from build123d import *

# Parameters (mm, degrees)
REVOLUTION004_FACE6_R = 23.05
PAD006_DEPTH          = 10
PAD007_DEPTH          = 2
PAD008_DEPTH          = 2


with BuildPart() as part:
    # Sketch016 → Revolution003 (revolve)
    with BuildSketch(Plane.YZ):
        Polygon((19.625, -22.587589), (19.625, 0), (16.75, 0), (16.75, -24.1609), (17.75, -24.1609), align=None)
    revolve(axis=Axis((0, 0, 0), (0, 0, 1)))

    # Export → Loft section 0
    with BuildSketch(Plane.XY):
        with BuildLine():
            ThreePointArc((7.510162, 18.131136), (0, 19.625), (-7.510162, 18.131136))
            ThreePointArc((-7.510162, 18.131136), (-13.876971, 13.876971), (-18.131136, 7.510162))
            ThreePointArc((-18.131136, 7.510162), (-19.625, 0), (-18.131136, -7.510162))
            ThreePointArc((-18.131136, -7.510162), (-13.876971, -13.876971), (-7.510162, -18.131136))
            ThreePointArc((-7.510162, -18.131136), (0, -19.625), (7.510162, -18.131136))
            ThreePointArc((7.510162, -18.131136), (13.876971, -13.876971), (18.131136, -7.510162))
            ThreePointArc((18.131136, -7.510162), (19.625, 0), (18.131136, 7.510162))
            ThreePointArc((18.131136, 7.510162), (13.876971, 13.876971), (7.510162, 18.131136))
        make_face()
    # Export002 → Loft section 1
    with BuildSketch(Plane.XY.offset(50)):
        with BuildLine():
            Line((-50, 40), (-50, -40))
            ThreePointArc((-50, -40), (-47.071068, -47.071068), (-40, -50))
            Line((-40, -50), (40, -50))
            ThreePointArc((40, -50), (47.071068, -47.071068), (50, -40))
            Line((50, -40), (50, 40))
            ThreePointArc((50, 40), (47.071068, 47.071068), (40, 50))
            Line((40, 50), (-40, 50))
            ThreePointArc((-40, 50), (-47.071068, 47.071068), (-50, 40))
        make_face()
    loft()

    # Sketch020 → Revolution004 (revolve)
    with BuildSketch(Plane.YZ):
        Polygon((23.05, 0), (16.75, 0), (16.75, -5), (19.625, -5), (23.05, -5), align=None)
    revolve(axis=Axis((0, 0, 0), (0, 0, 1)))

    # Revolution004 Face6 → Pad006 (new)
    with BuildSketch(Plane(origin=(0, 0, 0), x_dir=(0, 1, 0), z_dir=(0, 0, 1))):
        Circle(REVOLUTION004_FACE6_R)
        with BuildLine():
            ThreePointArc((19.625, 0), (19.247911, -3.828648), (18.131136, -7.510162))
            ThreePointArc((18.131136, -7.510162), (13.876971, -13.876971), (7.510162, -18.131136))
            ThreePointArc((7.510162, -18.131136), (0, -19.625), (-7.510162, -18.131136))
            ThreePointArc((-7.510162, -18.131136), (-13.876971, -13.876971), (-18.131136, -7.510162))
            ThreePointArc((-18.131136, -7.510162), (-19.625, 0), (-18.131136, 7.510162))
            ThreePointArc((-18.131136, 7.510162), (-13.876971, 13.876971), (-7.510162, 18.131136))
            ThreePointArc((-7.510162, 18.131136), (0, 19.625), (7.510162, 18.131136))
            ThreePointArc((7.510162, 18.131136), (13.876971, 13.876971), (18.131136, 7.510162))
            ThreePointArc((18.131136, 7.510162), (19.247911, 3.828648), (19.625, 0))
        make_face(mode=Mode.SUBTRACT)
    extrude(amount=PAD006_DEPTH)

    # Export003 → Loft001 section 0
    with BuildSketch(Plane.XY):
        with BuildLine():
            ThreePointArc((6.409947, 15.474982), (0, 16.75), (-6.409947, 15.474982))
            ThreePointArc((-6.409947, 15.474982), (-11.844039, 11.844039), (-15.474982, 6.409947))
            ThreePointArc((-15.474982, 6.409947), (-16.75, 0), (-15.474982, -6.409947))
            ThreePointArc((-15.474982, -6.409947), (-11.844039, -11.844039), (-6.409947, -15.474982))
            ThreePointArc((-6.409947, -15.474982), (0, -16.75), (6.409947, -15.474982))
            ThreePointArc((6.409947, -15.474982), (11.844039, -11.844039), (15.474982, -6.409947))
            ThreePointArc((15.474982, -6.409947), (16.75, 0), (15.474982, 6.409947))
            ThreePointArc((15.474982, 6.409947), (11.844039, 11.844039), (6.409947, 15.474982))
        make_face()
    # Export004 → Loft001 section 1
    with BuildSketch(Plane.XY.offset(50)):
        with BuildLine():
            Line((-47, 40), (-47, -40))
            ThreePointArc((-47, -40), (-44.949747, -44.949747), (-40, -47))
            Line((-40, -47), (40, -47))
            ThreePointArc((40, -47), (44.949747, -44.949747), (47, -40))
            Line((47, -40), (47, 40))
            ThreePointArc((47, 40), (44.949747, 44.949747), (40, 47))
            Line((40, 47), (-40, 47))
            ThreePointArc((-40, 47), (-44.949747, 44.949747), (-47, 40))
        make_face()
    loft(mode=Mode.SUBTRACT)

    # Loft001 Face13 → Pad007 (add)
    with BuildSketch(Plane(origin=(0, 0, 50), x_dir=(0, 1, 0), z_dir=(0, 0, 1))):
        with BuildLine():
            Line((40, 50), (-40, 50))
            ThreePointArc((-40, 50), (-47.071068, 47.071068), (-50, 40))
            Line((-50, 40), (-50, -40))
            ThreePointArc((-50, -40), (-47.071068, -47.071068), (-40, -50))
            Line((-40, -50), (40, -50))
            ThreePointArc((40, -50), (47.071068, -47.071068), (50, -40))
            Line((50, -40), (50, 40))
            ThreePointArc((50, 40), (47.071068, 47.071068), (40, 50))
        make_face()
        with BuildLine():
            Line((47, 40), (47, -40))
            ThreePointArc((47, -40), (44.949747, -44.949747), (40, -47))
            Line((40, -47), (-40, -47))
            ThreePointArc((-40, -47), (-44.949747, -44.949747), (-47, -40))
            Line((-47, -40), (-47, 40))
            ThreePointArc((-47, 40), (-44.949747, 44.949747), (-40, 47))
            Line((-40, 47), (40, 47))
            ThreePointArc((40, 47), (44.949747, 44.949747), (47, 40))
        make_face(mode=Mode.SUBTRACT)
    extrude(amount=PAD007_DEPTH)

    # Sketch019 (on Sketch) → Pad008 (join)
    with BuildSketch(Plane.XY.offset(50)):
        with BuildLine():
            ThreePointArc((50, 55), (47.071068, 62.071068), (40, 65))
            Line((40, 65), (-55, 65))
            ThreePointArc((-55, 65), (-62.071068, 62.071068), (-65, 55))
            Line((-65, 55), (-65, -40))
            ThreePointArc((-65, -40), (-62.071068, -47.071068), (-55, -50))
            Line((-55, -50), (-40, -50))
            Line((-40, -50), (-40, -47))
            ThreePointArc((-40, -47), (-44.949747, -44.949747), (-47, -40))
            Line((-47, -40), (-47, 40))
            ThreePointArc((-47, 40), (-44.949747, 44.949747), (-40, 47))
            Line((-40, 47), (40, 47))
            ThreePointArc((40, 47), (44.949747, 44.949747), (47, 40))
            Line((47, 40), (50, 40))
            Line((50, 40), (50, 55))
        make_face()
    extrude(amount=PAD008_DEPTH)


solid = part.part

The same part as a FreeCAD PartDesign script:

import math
import FreeCAD as App
import Part
import Sketcher
from FreeCAD import Vector
Q = App.Units.Quantity

doc = App.newDocument("Part")
body = doc.addObject("PartDesign::Body", "Body")

sketch1 = body.newObject("Sketcher::SketchObject", "Sketch")
sketch1.AttachmentSupport = (doc.getObject("YZ_Plane"), [""])
sketch1.MapMode = "FlatFace"
sketch1.addGeometry([
    Part.LineSegment(Vector(19.6, -22.6, 0), Vector(19.6, 0, 0)),
    Part.LineSegment(Vector(19.6, 0, 0), Vector(16.8, 0, 0)),
    Part.LineSegment(Vector(16.8, 0, 0), Vector(16.8, -24.2, 0)),
    Part.LineSegment(Vector(16.8, -24.2, 0), Vector(17.8, -24.2, 0)),
    Part.LineSegment(Vector(17.8, -24.2, 0), Vector(19.6, -22.6, 0)),
], False)
sketch1.addConstraint([
    Sketcher.Constraint("Coincident", 0, 2, 1, 1),
    Sketcher.Constraint("Coincident", 1, 2, 2, 1),
    Sketcher.Constraint("Coincident", 2, 2, 3, 1),
    Sketcher.Constraint("Coincident", 3, 2, 4, 1),
    Sketcher.Constraint("Coincident", 4, 2, 0, 1),
    Sketcher.Constraint("Vertical", 0),
    Sketcher.Constraint("Horizontal", 1),
    Sketcher.Constraint("Vertical", 2),
    Sketcher.Constraint("Horizontal", 3),
    Sketcher.Constraint("PointOnObject", 0, 2, -1),
    Sketcher.Constraint("DistanceX", 3, 1, 3, 2, 1.0),
    Sketcher.Constraint("Angle", 4, Q("39.999986 deg")),
    Sketcher.Constraint("DistanceX", 1, 2, 1, 1, 2.875),
    Sketcher.Constraint("DistanceX", -1, 1, 1, 2, 16.75),
    Sketcher.Constraint("DistanceY", 2, 2, 2, 1, 24.1609),
])
revolution = body.newObject("PartDesign::Revolution", "Revolution")
revolution.Profile = sketch1
revolution.ReferenceAxis = (sketch1, ["V_Axis"])
revolution.Angle = 360

sketch2 = body.newObject("Sketcher::SketchObject", "Sketch001")
sketch2.AttachmentSupport = (doc.getObject("XY_Plane"), [""])
sketch2.MapMode = "FlatFace"
sketch2.addGeometry([
    Part.ArcOfCircle(Part.Circle(Vector(0, 0, 0), Vector(0, 0, 1), 20), math.radians(68), math.radians(112)),
    Part.ArcOfCircle(Part.Circle(Vector(0, 0, 0), Vector(0, 0, 1), 20), math.radians(112), math.radians(158)),
    Part.ArcOfCircle(Part.Circle(Vector(0, 0, 0), Vector(0, 0, 1), 20), math.radians(158), math.radians(202)),
    Part.ArcOfCircle(Part.Circle(Vector(0, 0, 0), Vector(0, 0, 1), 20), math.radians(-158), math.radians(-112)),
    Part.ArcOfCircle(Part.Circle(Vector(0, 0, 0), Vector(0, 0, 1), 20), math.radians(-112), math.radians(-68)),
    Part.ArcOfCircle(Part.Circle(Vector(0, 0, 0), Vector(0, 0, 1), 20), math.radians(-68), math.radians(-22)),
    Part.ArcOfCircle(Part.Circle(Vector(0, 0, 0), Vector(0, 0, 1), 20), math.radians(-22), math.radians(22)),
    Part.ArcOfCircle(Part.Circle(Vector(0, 0, 0), Vector(0, 0, 1), 20), math.radians(22), math.radians(68)),
], False)
sketch2.addConstraint([
    Sketcher.Constraint("Tangent", 0, 2, 1, 1),
    Sketcher.Constraint("Tangent", 1, 2, 2, 1),
    Sketcher.Constraint("Tangent", 2, 2, 3, 1),
    Sketcher.Constraint("Tangent", 3, 2, 4, 1),
    Sketcher.Constraint("Tangent", 4, 2, 5, 1),
    Sketcher.Constraint("Tangent", 5, 2, 6, 1),
    Sketcher.Constraint("Tangent", 6, 2, 7, 1),
    Sketcher.Constraint("Tangent", 7, 2, 0, 1),
    Sketcher.Constraint("Coincident", 0, 3, -1, 1),
    Sketcher.Constraint("Coincident", 2, 3, -1, 1),
    Sketcher.Constraint("Coincident", 4, 3, -1, 1),
    Sketcher.Constraint("Equal", 3, 5),
    Sketcher.Constraint("Horizontal", 3, 2, 4, 2),
    Sketcher.Constraint("Horizontal", 2, 2, 5, 2),
    Sketcher.Constraint("Horizontal", 1, 2, 6, 2),
    Sketcher.Constraint("Horizontal", 0, 2, 7, 2),
    Sketcher.Constraint("Vertical", 1, 2, 2, 2),
    Sketcher.Constraint("Vertical", 0, 2, 3, 2),
    Sketcher.Constraint("Radius", 0, 19.625),
    Sketcher.Constraint("DistanceY", -1, 1, 1, 2, 7.510162),
    Sketcher.Constraint("DistanceX", 3, 2, -1, 1, 7.510162),
])

sketch3 = body.newObject("Sketcher::SketchObject", "Sketch002")
sketch3.AttachmentSupport = (doc.getObject("XY_Plane"), [""])
sketch3.MapMode = "FlatFace"
sketch3.AttachmentOffset = App.Placement(Vector(0, 0, 50), App.Rotation())
sketch3.addGeometry([
    Part.LineSegment(Vector(-50, 40, 0), Vector(-50, -40, 0)),
    Part.ArcOfCircle(Part.Circle(Vector(-40, -40, 0), Vector(0, 0, 1), 10), math.radians(180), math.radians(270)),
    Part.LineSegment(Vector(-40, -50, 0), Vector(40, -50, 0)),
    Part.ArcOfCircle(Part.Circle(Vector(40, -40, 0), Vector(0, 0, 1), 10), math.radians(-90), math.radians(0)),
    Part.LineSegment(Vector(50, -40, 0), Vector(50, 40, 0)),
    Part.ArcOfCircle(Part.Circle(Vector(40, 40, 0), Vector(0, 0, 1), 10), math.radians(0), math.radians(90)),
    Part.LineSegment(Vector(40, 50, 0), Vector(-40, 50, 0)),
    Part.ArcOfCircle(Part.Circle(Vector(-40, 40, 0), Vector(0, 0, 1), 10), math.radians(90), math.radians(180)),
], False)
sketch3.addConstraint([
    Sketcher.Constraint("Tangent", 0, 2, 1, 1),
    Sketcher.Constraint("Tangent", 1, 2, 2, 1),
    Sketcher.Constraint("Tangent", 2, 2, 3, 1),
    Sketcher.Constraint("Tangent", 3, 2, 4, 1),
    Sketcher.Constraint("Tangent", 4, 2, 5, 1),
    Sketcher.Constraint("Tangent", 5, 2, 6, 1),
    Sketcher.Constraint("Tangent", 6, 2, 7, 1),
    Sketcher.Constraint("Tangent", 7, 2, 0, 1),
    Sketcher.Constraint("Vertical", 0),
    Sketcher.Constraint("Horizontal", 2),
    Sketcher.Constraint("Vertical", 4),
    Sketcher.Constraint("Horizontal", 6),
    Sketcher.Constraint("Equal", 1, 3),
    Sketcher.Constraint("Equal", 3, 5),
    Sketcher.Constraint("Equal", 5, 7),
    Sketcher.Constraint("Symmetric", 1, 3, 5, 3, -1, 1),
    Sketcher.Constraint("Equal", 6, 0),
    Sketcher.Constraint("Radius", 1, 9.999999),
    Sketcher.Constraint("DistanceX", 2, 1, 2, 2, 80.0),
])

additiveloft = body.newObject("PartDesign::AdditiveLoft", "AdditiveLoft")
additiveloft.Profile = sketch2
additiveloft.Sections = [sketch3]

sketch4 = body.newObject("Sketcher::SketchObject", "Sketch003")
sketch4.AttachmentSupport = (doc.getObject("YZ_Plane"), [""])
sketch4.MapMode = "FlatFace"
sketch4.addGeometry([
    Part.LineSegment(Vector(23, 0, 0), Vector(17, 0, 0)),
    Part.LineSegment(Vector(17, 0, 0), Vector(17, -5, 0)),
    Part.LineSegment(Vector(17, -5, 0), Vector(23, -5, 0)),
    Part.LineSegment(Vector(23, -5, 0), Vector(23, 0, 0)),
], False)
sketch4.addConstraint([
    Sketcher.Constraint("Coincident", 0, 2, 1, 1),
    Sketcher.Constraint("Coincident", 1, 2, 2, 1),
    Sketcher.Constraint("Coincident", 2, 2, 3, 1),
    Sketcher.Constraint("Coincident", 3, 2, 0, 1),
    Sketcher.Constraint("Horizontal", 0),
    Sketcher.Constraint("Vertical", 1),
    Sketcher.Constraint("Horizontal", 2),
    Sketcher.Constraint("Vertical", 3),
    Sketcher.Constraint("PointOnObject", 0, 2, -1),
    Sketcher.Constraint("DistanceY", 1, 2, 1, 1, 5.0),
    Sketcher.Constraint("DistanceX", 0, 2, 0, 1, 6.3),
    Sketcher.Constraint("DistanceX", -1, 1, 0, 2, 16.75),
])
revolution2 = body.newObject("PartDesign::Revolution", "Revolution001")
revolution2.Profile = sketch4
revolution2.ReferenceAxis = (sketch4, ["V_Axis"])
revolution2.Angle = 360

sketch5 = body.newObject("Sketcher::SketchObject", "Sketch004")
sketch5.AttachmentSupport = (doc.getObject("XY_Plane"), [""])
sketch5.MapMode = "FlatFace"
sketch5.addGeometry([
    Part.Circle(Vector(0, 0, 0), Vector(0, 0, 1), 23),
    Part.ArcOfCircle(Part.Circle(Vector(0, 0, 0), Vector(0, 0, 1), 20), math.radians(90), math.radians(112)),
    Part.ArcOfCircle(Part.Circle(Vector(0, 0, 0), Vector(0, 0, 1), 20), math.radians(68), math.radians(90)),
    Part.ArcOfCircle(Part.Circle(Vector(0, 0, 0), Vector(0, 0, 1), 20), math.radians(22), math.radians(68)),
    Part.ArcOfCircle(Part.Circle(Vector(0, 0, 0), Vector(0, 0, 1), 20), math.radians(-22), math.radians(22)),
    Part.ArcOfCircle(Part.Circle(Vector(0, 0, 0), Vector(0, 0, 1), 20), math.radians(-68), math.radians(-22)),
    Part.ArcOfCircle(Part.Circle(Vector(0, 0, 0), Vector(0, 0, 1), 20), math.radians(-112), math.radians(-68)),
    Part.ArcOfCircle(Part.Circle(Vector(0, 0, 0), Vector(0, 0, 1), 20), math.radians(-158), math.radians(-112)),
    Part.ArcOfCircle(Part.Circle(Vector(0, 0, 0), Vector(0, 0, 1), 20), math.radians(158), math.radians(202)),
    Part.ArcOfCircle(Part.Circle(Vector(0, 0, 0), Vector(0, 0, 1), 20), math.radians(112), math.radians(158)),
], False)
sketch5.addConstraint([
    Sketcher.Constraint("Tangent", 1, 1, 2, 2),
    Sketcher.Constraint("Tangent", 2, 1, 3, 2),
    Sketcher.Constraint("Tangent", 3, 1, 4, 2),
    Sketcher.Constraint("Tangent", 4, 1, 5, 2),
    Sketcher.Constraint("Tangent", 5, 1, 6, 2),
    Sketcher.Constraint("Tangent", 6, 1, 7, 2),
    Sketcher.Constraint("Tangent", 7, 1, 8, 2),
    Sketcher.Constraint("Tangent", 8, 1, 9, 2),
    Sketcher.Constraint("Tangent", 9, 1, 1, 2),
    Sketcher.Constraint("Coincident", 0, 3, -1, 1),
    Sketcher.Constraint("Coincident", 1, 3, -1, 1),
    Sketcher.Constraint("Coincident", 3, 3, -1, 1),
    Sketcher.Constraint("Coincident", 5, 3, -1, 1),
    Sketcher.Constraint("Coincident", 7, 3, -1, 1),
    Sketcher.Constraint("PointOnObject", 1, 1, -2),
    Sketcher.Constraint("Horizontal", 5, 1, 6, 1),
    Sketcher.Constraint("Horizontal", 4, 1, 7, 1),
    Sketcher.Constraint("Horizontal", 3, 1, 8, 1),
    Sketcher.Constraint("Horizontal", 2, 1, 9, 1),
    Sketcher.Constraint("Vertical", 3, 1, 4, 1),
    Sketcher.Constraint("Vertical", 2, 1, 5, 1),
    Sketcher.Constraint("Diameter", 0, 46.1),
    Sketcher.Constraint("Radius", 4, 19.625),
    Sketcher.Constraint("DistanceY", -1, 1, 3, 1, 7.510162),
    Sketcher.Constraint("DistanceX", -1, 1, 5, 1, 7.510162),
])
pad1 = body.newObject("PartDesign::Pad", "Pad")
pad1.Profile = sketch5
pad1.Length = 10

sketch6 = body.newObject("Sketcher::SketchObject", "Sketch005")
sketch6.AttachmentSupport = (doc.getObject("XY_Plane"), [""])
sketch6.MapMode = "FlatFace"
sketch6.addGeometry([
    Part.ArcOfCircle(Part.Circle(Vector(0, 0, 0), Vector(0, 0, 1), 17), math.radians(67), math.radians(113)),
    Part.ArcOfCircle(Part.Circle(Vector(0, 0, 0), Vector(0, 0, 1), 17), math.radians(112), math.radians(158)),
    Part.ArcOfCircle(Part.Circle(Vector(0, 0, 0), Vector(0, 0, 1), 17), math.radians(157), math.radians(203)),
    Part.ArcOfCircle(Part.Circle(Vector(0, 0, 0), Vector(0, 0, 1), 17), math.radians(-158), math.radians(-112)),
    Part.ArcOfCircle(Part.Circle(Vector(0, 0, 0), Vector(0, 0, 1), 17), math.radians(-113), math.radians(-67)),
    Part.ArcOfCircle(Part.Circle(Vector(0, 0, 0), Vector(0, 0, 1), 17), math.radians(-68), math.radians(-22)),
    Part.ArcOfCircle(Part.Circle(Vector(0, 0, 0), Vector(0, 0, 1), 17), math.radians(-23), math.radians(23)),
    Part.ArcOfCircle(Part.Circle(Vector(0, 0, 0), Vector(0, 0, 1), 17), math.radians(22), math.radians(68)),
], False)
sketch6.addConstraint([
    Sketcher.Constraint("Tangent", 0, 2, 1, 1),
    Sketcher.Constraint("Tangent", 1, 2, 2, 1),
    Sketcher.Constraint("Tangent", 2, 2, 3, 1),
    Sketcher.Constraint("Tangent", 3, 2, 4, 1),
    Sketcher.Constraint("Tangent", 4, 2, 5, 1),
    Sketcher.Constraint("Tangent", 5, 2, 6, 1),
    Sketcher.Constraint("Tangent", 6, 2, 7, 1),
    Sketcher.Constraint("Tangent", 7, 2, 0, 1),
    Sketcher.Constraint("Coincident", 0, 3, -1, 1),
    Sketcher.Constraint("Coincident", 2, 3, -1, 1),
    Sketcher.Constraint("Coincident", 4, 3, -1, 1),
    Sketcher.Constraint("Equal", 3, 5),
    Sketcher.Constraint("Horizontal", 3, 2, 4, 2),
    Sketcher.Constraint("Horizontal", 2, 2, 5, 2),
    Sketcher.Constraint("Horizontal", 1, 2, 6, 2),
    Sketcher.Constraint("Horizontal", 0, 2, 7, 2),
    Sketcher.Constraint("Vertical", 1, 2, 2, 2),
    Sketcher.Constraint("Vertical", 0, 2, 3, 2),
    Sketcher.Constraint("Radius", 1, 16.749988),
    Sketcher.Constraint("DistanceX", 0, 2, 1, 3, 6.409938),
    Sketcher.Constraint("DistanceY", 1, 3, 1, 2, 6.409938),
])

sketch7 = body.newObject("Sketcher::SketchObject", "Sketch006")
sketch7.AttachmentSupport = (doc.getObject("XY_Plane"), [""])
sketch7.MapMode = "FlatFace"
sketch7.AttachmentOffset = App.Placement(Vector(0, 0, 50), App.Rotation())
sketch7.addGeometry([
    Part.LineSegment(Vector(-47, 40, 0), Vector(-47, -40, 0)),
    Part.ArcOfCircle(Part.Circle(Vector(-40, -40, 0), Vector(0, 0, 1), 7), math.radians(-180), math.radians(-90)),
    Part.LineSegment(Vector(-40, -47, 0), Vector(40, -47, 0)),
    Part.ArcOfCircle(Part.Circle(Vector(40, -40, 0), Vector(0, 0, 1), 7), math.radians(-90), math.radians(0)),
    Part.LineSegment(Vector(47, -40, 0), Vector(47, 40, 0)),
    Part.ArcOfCircle(Part.Circle(Vector(40, 40, 0), Vector(0, 0, 1), 7), math.radians(0), math.radians(90)),
    Part.LineSegment(Vector(40, 47, 0), Vector(-40, 47, 0)),
    Part.ArcOfCircle(Part.Circle(Vector(-40, 40, 0), Vector(0, 0, 1), 7), math.radians(90), math.radians(180)),
], False)
sketch7.addConstraint([
    Sketcher.Constraint("Tangent", 0, 2, 1, 1),
    Sketcher.Constraint("Tangent", 1, 2, 2, 1),
    Sketcher.Constraint("Tangent", 2, 2, 3, 1),
    Sketcher.Constraint("Tangent", 3, 2, 4, 1),
    Sketcher.Constraint("Tangent", 4, 2, 5, 1),
    Sketcher.Constraint("Tangent", 5, 2, 6, 1),
    Sketcher.Constraint("Tangent", 6, 2, 7, 1),
    Sketcher.Constraint("Tangent", 7, 2, 0, 1),
    Sketcher.Constraint("Vertical", 0),
    Sketcher.Constraint("Horizontal", 2),
    Sketcher.Constraint("Vertical", 4),
    Sketcher.Constraint("Horizontal", 6),
    Sketcher.Constraint("Equal", 1, 3),
    Sketcher.Constraint("Equal", 3, 5),
    Sketcher.Constraint("Equal", 5, 7),
    Sketcher.Constraint("Symmetric", 1, 3, 5, 3, -1, 1),
    Sketcher.Constraint("Equal", 6, 0),
    Sketcher.Constraint("Radius", 1, 7.000002),
    Sketcher.Constraint("DistanceX", 2, 1, 2, 2, 80.0),
])

subtractiveloft = body.newObject("PartDesign::SubtractiveLoft", "SubtractiveLoft")
subtractiveloft.Profile = sketch6
subtractiveloft.Sections = [sketch7]

sketch8 = body.newObject("Sketcher::SketchObject", "Sketch007")
sketch8.AttachmentSupport = (doc.getObject("XY_Plane"), [""])
sketch8.MapMode = "FlatFace"
sketch8.AttachmentOffset = App.Placement(Vector(0, 0, 50), App.Rotation())
sketch8.addGeometry([
    Part.LineSegment(Vector(-50, 40, 0), Vector(-50, -40, 0)),
    Part.ArcOfCircle(Part.Circle(Vector(-40, -40, 0), Vector(0, 0, 1), 10), math.radians(180), math.radians(270)),
    Part.LineSegment(Vector(-40, -50, 0), Vector(40, -50, 0)),
    Part.ArcOfCircle(Part.Circle(Vector(40, -40, 0), Vector(0, 0, 1), 10), math.radians(-90), math.radians(0)),
    Part.LineSegment(Vector(50, -40, 0), Vector(50, 40, 0)),
    Part.ArcOfCircle(Part.Circle(Vector(40, 40, 0), Vector(0, 0, 1), 10), math.radians(0), math.radians(90)),
    Part.LineSegment(Vector(40, 50, 0), Vector(-40, 50, 0)),
    Part.ArcOfCircle(Part.Circle(Vector(-40, 40, 0), Vector(0, 0, 1), 10), math.radians(90), math.radians(180)),
    Part.ArcOfCircle(Part.Circle(Vector(-40, 40, 0), Vector(0, 0, 1), 7), math.radians(90), math.radians(180)),
    Part.LineSegment(Vector(-40, 47, 0), Vector(40, 47, 0)),
    Part.ArcOfCircle(Part.Circle(Vector(40, 40, 0), Vector(0, 0, 1), 7), math.radians(0), math.radians(90)),
    Part.LineSegment(Vector(47, 40, 0), Vector(47, -40, 0)),
    Part.ArcOfCircle(Part.Circle(Vector(40, -40, 0), Vector(0, 0, 1), 7), math.radians(-90), math.radians(0)),
    Part.LineSegment(Vector(40, -47, 0), Vector(-40, -47, 0)),
    Part.ArcOfCircle(Part.Circle(Vector(-40, -40, 0), Vector(0, 0, 1), 7), math.radians(-180), math.radians(-90)),
    Part.LineSegment(Vector(-47, -40, 0), Vector(-47, 40, 0)),
], False)
sketch8.addConstraint([
    Sketcher.Constraint("Tangent", 0, 2, 1, 1),
    Sketcher.Constraint("Tangent", 1, 2, 2, 1),
    Sketcher.Constraint("Tangent", 2, 2, 3, 1),
    Sketcher.Constraint("Tangent", 3, 2, 4, 1),
    Sketcher.Constraint("Tangent", 4, 2, 5, 1),
    Sketcher.Constraint("Tangent", 5, 2, 6, 1),
    Sketcher.Constraint("Tangent", 6, 2, 7, 1),
    Sketcher.Constraint("Tangent", 7, 2, 0, 1),
    Sketcher.Constraint("Tangent", 8, 1, 9, 1),
    Sketcher.Constraint("Tangent", 9, 2, 10, 2),
    Sketcher.Constraint("Tangent", 10, 1, 11, 1),
    Sketcher.Constraint("Tangent", 11, 2, 12, 2),
    Sketcher.Constraint("Tangent", 12, 1, 13, 1),
    Sketcher.Constraint("Tangent", 13, 2, 14, 2),
    Sketcher.Constraint("Tangent", 14, 1, 15, 1),
    Sketcher.Constraint("Tangent", 15, 2, 8, 2),
    Sketcher.Constraint("Vertical", 0),
    Sketcher.Constraint("Horizontal", 2),
    Sketcher.Constraint("Vertical", 4),
    Sketcher.Constraint("Horizontal", 6),
    Sketcher.Constraint("Horizontal", 9),
    Sketcher.Constraint("Vertical", 11),
    Sketcher.Constraint("Horizontal", 13),
    Sketcher.Constraint("Vertical", 15),
    Sketcher.Constraint("Coincident", 8, 3, 7, 3),
    Sketcher.Constraint("Coincident", 10, 3, 5, 3),
    Sketcher.Constraint("Coincident", 12, 3, 3, 3),
    Sketcher.Constraint("Equal", 1, 3),
    Sketcher.Constraint("Equal", 3, 5),
    Sketcher.Constraint("Equal", 5, 7),
    Sketcher.Constraint("Equal", 12, 14),
    Sketcher.Constraint("Symmetric", 1, 3, 5, 3, -1, 1),
    Sketcher.Constraint("Equal", 13, 0),
    Sketcher.Constraint("Radius", 1, 9.999999),
    Sketcher.Constraint("Radius", 8, 7.000002),
    Sketcher.Constraint("DistanceX", 2, 1, 2, 2, 80.0),
])
pad2 = body.newObject("PartDesign::Pad", "Pad001")
pad2.Profile = sketch8
pad2.Length = 2

sketch9 = body.newObject("Sketcher::SketchObject", "Sketch008")
sketch9.AttachmentSupport = (doc.getObject("XY_Plane"), [""])
sketch9.MapMode = "FlatFace"
sketch9.AttachmentOffset = App.Placement(Vector(0, 0, 50), App.Rotation())
sketch9.addGeometry([
    Part.ArcOfCircle(Part.Circle(Vector(40, 55, 0), Vector(0, 0, 1), 10), math.radians(0), math.radians(90)),
    Part.LineSegment(Vector(40, 65, 0), Vector(-55, 65, 0)),
    Part.ArcOfCircle(Part.Circle(Vector(-55, 55, 0), Vector(0, 0, 1), 10), math.radians(90), math.radians(180)),
    Part.LineSegment(Vector(-65, 55, 0), Vector(-65, -40, 0)),
    Part.ArcOfCircle(Part.Circle(Vector(-55, -40, 0), Vector(0, 0, 1), 10), math.radians(180), math.radians(270)),
    Part.LineSegment(Vector(-55, -50, 0), Vector(-40, -50, 0)),
    Part.LineSegment(Vector(-40, -50, 0), Vector(-40, -47, 0)),
    Part.ArcOfCircle(Part.Circle(Vector(-40, -40, 0), Vector(0, 0, 1), 7), math.radians(-180), math.radians(-90)),
    Part.LineSegment(Vector(-47, -40, 0), Vector(-47, 40, 0)),
    Part.ArcOfCircle(Part.Circle(Vector(-40, 40, 0), Vector(0, 0, 1), 7), math.radians(90), math.radians(180)),
    Part.LineSegment(Vector(-40, 47, 0), Vector(40, 47, 0)),
    Part.ArcOfCircle(Part.Circle(Vector(40, 40, 0), Vector(0, 0, 1), 7), math.radians(0), math.radians(90)),
    Part.LineSegment(Vector(47, 40, 0), Vector(50, 40, 0)),
    Part.LineSegment(Vector(50, 40, 0), Vector(50, 55, 0)),
], False)
sketch9.addConstraint([
    Sketcher.Constraint("Tangent", 0, 2, 1, 1),
    Sketcher.Constraint("Tangent", 1, 2, 2, 1),
    Sketcher.Constraint("Tangent", 2, 2, 3, 1),
    Sketcher.Constraint("Tangent", 3, 2, 4, 1),
    Sketcher.Constraint("Tangent", 4, 2, 5, 1),
    Sketcher.Constraint("Coincident", 5, 2, 6, 1),
    Sketcher.Constraint("Coincident", 6, 2, 7, 2),
    Sketcher.Constraint("Tangent", 7, 1, 8, 1),
    Sketcher.Constraint("Tangent", 8, 2, 9, 2),
    Sketcher.Constraint("Tangent", 9, 1, 10, 1),
    Sketcher.Constraint("Tangent", 10, 2, 11, 2),
    Sketcher.Constraint("Coincident", 11, 1, 12, 1),
    Sketcher.Constraint("Coincident", 12, 2, 13, 1),
    Sketcher.Constraint("Tangent", 13, 2, 0, 1),
    Sketcher.Constraint("Horizontal", 1),
    Sketcher.Constraint("Vertical", 3),
    Sketcher.Constraint("Horizontal", 5),
    Sketcher.Constraint("Vertical", 6),
    Sketcher.Constraint("Vertical", 8),
    Sketcher.Constraint("Horizontal", 10),
    Sketcher.Constraint("Horizontal", 12),
    Sketcher.Constraint("Vertical", 13),
    Sketcher.Constraint("Equal", 0, 2),
    Sketcher.Constraint("Equal", 2, 4),
    Sketcher.Constraint("Equal", 7, 9),
    Sketcher.Constraint("Equal", 9, 11),
    Sketcher.Constraint("Symmetric", 7, 3, 11, 3, -1, 1),
    Sketcher.Constraint("Horizontal", 7, 3, 3, 2),
    Sketcher.Constraint("Horizontal", 8, 2, 11, 1),
    Sketcher.Constraint("Vertical", 11, 3, 0, 2),
    Sketcher.Constraint("Vertical", 9, 3, 5, 2),
    Sketcher.Constraint("Equal", 1, 3),
    Sketcher.Constraint("Equal", 10, 8),
    Sketcher.Constraint("Radius", 0, 9.999999),
    Sketcher.Constraint("Radius", 7, 7.000002),
    Sketcher.Constraint("DistanceX", 1, 2, 1, 1, 95.0),
    Sketcher.Constraint("DistanceX", 5, 1, 5, 2, 15.0),
])
pad3 = body.newObject("PartDesign::Pad", "Pad002")
pad3.Profile = sketch9
pad3.Length = 2

doc.recompute()
